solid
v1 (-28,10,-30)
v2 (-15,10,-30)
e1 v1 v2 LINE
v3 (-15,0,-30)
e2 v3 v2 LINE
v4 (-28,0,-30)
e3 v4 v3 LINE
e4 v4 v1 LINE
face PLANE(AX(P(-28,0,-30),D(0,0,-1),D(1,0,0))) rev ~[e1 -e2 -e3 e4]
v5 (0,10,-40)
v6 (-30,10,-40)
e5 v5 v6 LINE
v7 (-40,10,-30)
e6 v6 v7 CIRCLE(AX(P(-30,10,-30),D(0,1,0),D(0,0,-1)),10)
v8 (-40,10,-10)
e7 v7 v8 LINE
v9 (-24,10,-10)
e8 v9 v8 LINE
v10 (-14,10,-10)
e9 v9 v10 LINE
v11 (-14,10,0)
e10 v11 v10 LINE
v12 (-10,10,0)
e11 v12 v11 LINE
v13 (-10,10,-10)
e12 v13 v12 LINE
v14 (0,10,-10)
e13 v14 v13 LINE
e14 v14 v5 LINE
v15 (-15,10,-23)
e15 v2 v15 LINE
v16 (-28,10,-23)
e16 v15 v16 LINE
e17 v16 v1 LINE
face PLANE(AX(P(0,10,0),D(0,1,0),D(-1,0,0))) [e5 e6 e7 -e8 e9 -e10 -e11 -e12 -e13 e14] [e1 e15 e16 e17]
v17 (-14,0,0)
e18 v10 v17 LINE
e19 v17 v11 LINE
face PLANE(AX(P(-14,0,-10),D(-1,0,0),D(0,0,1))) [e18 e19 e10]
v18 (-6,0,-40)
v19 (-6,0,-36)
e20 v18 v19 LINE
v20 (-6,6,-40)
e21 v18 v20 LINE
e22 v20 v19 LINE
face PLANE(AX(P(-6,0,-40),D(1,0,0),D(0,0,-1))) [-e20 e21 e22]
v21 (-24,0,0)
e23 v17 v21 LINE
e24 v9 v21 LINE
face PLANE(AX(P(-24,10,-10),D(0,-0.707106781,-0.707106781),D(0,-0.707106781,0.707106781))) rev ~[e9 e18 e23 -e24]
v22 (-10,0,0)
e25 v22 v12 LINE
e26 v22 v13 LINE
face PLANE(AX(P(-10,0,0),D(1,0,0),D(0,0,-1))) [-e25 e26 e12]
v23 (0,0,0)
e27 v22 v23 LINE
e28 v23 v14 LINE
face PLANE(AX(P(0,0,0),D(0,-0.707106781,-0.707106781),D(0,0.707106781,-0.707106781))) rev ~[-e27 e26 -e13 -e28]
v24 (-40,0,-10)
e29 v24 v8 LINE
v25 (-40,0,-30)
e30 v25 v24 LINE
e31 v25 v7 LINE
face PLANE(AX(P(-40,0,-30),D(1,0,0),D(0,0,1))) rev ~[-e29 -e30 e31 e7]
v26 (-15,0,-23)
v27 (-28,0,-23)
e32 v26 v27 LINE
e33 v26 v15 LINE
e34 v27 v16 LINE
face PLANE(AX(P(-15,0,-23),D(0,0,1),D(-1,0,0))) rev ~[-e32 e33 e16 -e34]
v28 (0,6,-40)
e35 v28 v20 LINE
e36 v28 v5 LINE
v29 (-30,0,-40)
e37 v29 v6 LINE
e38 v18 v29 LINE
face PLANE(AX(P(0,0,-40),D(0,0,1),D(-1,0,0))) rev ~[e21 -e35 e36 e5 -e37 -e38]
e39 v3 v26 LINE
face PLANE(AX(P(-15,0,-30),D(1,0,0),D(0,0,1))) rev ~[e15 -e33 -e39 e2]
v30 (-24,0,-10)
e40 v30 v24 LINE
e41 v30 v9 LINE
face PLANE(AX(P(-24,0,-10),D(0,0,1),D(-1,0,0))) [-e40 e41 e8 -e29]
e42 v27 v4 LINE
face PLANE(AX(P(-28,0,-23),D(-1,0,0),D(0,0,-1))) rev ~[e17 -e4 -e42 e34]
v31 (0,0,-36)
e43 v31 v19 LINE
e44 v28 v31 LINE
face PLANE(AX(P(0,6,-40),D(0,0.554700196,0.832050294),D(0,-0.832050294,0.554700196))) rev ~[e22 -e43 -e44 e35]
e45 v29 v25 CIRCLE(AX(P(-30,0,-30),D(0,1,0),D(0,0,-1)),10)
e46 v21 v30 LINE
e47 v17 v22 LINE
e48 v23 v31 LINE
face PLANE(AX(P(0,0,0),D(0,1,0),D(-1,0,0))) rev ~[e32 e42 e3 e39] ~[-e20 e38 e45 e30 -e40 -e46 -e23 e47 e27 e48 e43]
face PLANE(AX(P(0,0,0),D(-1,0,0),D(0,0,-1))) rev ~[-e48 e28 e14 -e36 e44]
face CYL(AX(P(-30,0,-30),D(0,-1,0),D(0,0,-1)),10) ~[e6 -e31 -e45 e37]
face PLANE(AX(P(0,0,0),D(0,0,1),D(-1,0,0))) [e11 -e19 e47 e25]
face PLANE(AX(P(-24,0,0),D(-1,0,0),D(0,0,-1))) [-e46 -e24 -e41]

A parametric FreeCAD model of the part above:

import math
import FreeCAD as App
import Part
import Sketcher
from FreeCAD import Vector
Q = App.Units.Quantity

doc = App.newDocument("Part")
body = doc.addObject("PartDesign::Body", "Body")

sketch1 = body.newObject("Sketcher::SketchObject", "Sketch")
sketch1.AttachmentSupport = (doc.getObject("XZ_Plane"), [""])
sketch1.MapMode = "FlatFace"
sketch1.addGeometry(Part.LineSegment(Vector(-24, 0, 0), Vector(0, 0, 0)), False)
sketch1.addGeometry(Part.LineSegment(Vector(0, 0, 0), Vector(0, -40, 0)), False)
sketch1.addGeometry(Part.LineSegment(Vector(0, -40, 0), Vector(-30, -40, 0)), False)
sketch1.addGeometry(Part.ArcOfCircle(Part.Circle(Vector(-30, -30, 0), Vector(0, 0, 1), 10), math.radians(180), math.radians(270)), False)
sketch1.addGeometry(Part.LineSegment(Vector(-40, -30, 0), Vector(-40, -10, 0)), False)
sketch1.addGeometry(Part.LineSegment(Vector(-40, -10, 0), Vector(-24, -10, 0)), False)
sketch1.addGeometry(Part.LineSegment(Vector(-24, -10, 0), Vector(-24, 0, 0)), False)
sketch1.addGeometry(Part.LineSegment(Vector(-28, -23, 0), Vector(-28, -30, 0)), False)
sketch1.addGeometry(Part.LineSegment(Vector(-28, -30, 0), Vector(-15, -30, 0)), False)
sketch1.addGeometry(Part.LineSegment(Vector(-15, -30, 0), Vector(-15, -23, 0)), False)
sketch1.addGeometry(Part.LineSegment(Vector(-15, -23, 0), Vector(-28, -23, 0)), False)
sketch1.addConstraint(Sketcher.Constraint("Coincident", 0, 2, 1, 1))
sketch1.addConstraint(Sketcher.Constraint("Coincident", 1, 2, 2, 1))
sketch1.addConstraint(Sketcher.Constraint("Tangent", 2, 2, 3, 2))
sketch1.addConstraint(Sketcher.Constraint("Tangent", 3, 1, 4, 1))
sketch1.addConstraint(Sketcher.Constraint("Coincident", 4, 2, 5, 1))
sketch1.addConstraint(Sketcher.Constraint("Coincident", 5, 2, 6, 1))
sketch1.addConstraint(Sketcher.Constraint("Coincident", 6, 2, 0, 1))
sketch1.addConstraint(Sketcher.Constraint("Coincident", 7, 2, 8, 1))
sketch1.addConstraint(Sketcher.Constraint("Coincident", 8, 2, 9, 1))
sketch1.addConstraint(Sketcher.Constraint("Coincident", 9, 2, 10, 1))
sketch1.addConstraint(Sketcher.Constraint("Coincident", 10, 2, 7, 1))
sketch1.addConstraint(Sketcher.Constraint("Horizontal", 0))
sketch1.addConstraint(Sketcher.Constraint("Vertical", 1))
sketch1.addConstraint(Sketcher.Constraint("Horizontal", 2))
sketch1.addConstraint(Sketcher.Constraint("Vertical", 4))
sketch1.addConstraint(Sketcher.Constraint("Horizontal", 5))
sketch1.addConstraint(Sketcher.Constraint("Vertical", 6))
sketch1.addConstraint(Sketcher.Constraint("Vertical", 7))
sketch1.addConstraint(Sketcher.Constraint("Horizontal", 8))
sketch1.addConstraint(Sketcher.Constraint("Vertical", 9))
sketch1.addConstraint(Sketcher.Constraint("Horizontal", 10))
sketch1.addConstraint(Sketcher.Constraint("Coincident", 0, 2, -1, 1))
sketch1.addConstraint(Sketcher.Constraint("Horizontal", 3, 1, 7, 2))
sketch1.addConstraint(Sketcher.Constraint("Radius", 3, Q("10 mm")))
sketch1.addConstraint(Sketcher.Constraint("DistanceX", 5, 1, 5, 2, Q("16 mm")))
sketch1.addConstraint(Sketcher.Constraint("DistanceX", 8, 1, 8, 2, Q("13 mm")))
sketch1.addConstraint(Sketcher.Constraint("DistanceY", 1, 2, 1, 1, Q("40 mm")))
sketch1.addConstraint(Sketcher.Constraint("DistanceY", 6, 1, 6, 2, Q("10 mm")))
sketch1.addConstraint(Sketcher.Constraint("DistanceY", 7, 2, 7, 1, Q("7 mm")))
sketch1.addConstraint(Sketcher.Constraint("DistanceX", 3, 1, -1, 1, Q("40 mm")))
sketch1.addConstraint(Sketcher.Constraint("DistanceX", 3, 1, 7, 2, Q("12 mm")))
pad1 = body.newObject("PartDesign::Pad", "Pad")
pad1.Profile = sketch1
pad1.Length = 10
pad1.Reversed = True

sketch2 = body.newObject("Sketcher::SketchObject", "Sketch001")
sketch2.AttachmentSupport = (doc.getObject("YZ_Plane"), [""])
sketch2.MapMode = "FlatFace"
sketch2.AttachmentOffset = App.Placement(Vector(0, 0, -24), App.Rotation())
sketch2.addGeometry(Part.LineSegment(Vector(10, 0, 0), Vector(10, -10, 0)), False)
sketch2.addGeometry(Part.LineSegment(Vector(10, -10, 0), Vector(0, 0, 0)), False)
sketch2.addGeometry(Part.LineSegment(Vector(0, 0, 0), Vector(10, 0, 0)), False)
sketch2.addConstraint(Sketcher.Constraint("Coincident", 0, 2, 1, 1))
sketch2.addConstraint(Sketcher.Constraint("Coincident", 1, 2, 2, 1))
sketch2.addConstraint(Sketcher.Constraint("Coincident", 2, 2, 0, 1))
sketch2.addConstraint(Sketcher.Constraint("Vertical", 0))
sketch2.addConstraint(Sketcher.Constraint("Horizontal", 2))
sketch2.addConstraint(Sketcher.Constraint("Coincident", 1, 2, -1, 1))
sketch2.addConstraint(Sketcher.Constraint("Equal", 2, 0))
sketch2.addConstraint(Sketcher.Constraint("DistanceX", 2, 1, 2, 2, Q("10 mm")))
pocket1 = body.newObject("PartDesign::Pocket", "Pocket")
pocket1.Profile = sketch2
pocket1.Length = 10
pocket1.Reversed = True

sketch3 = body.newObject("Sketcher::SketchObject", "Sketch002")
sketch3.AttachmentSupport = (doc.getObject("YZ_Plane"), [""])
sketch3.MapMode = "FlatFace"
sketch3.addGeometry(Part.LineSegment(Vector(10, 0, 0), Vector(0, 0, 0)), False)
sketch3.addGeometry(Part.LineSegment(Vector(0, 0, 0), Vector(10, -10, 0)), False)
sketch3.addGeometry(Part.LineSegment(Vector(10, -10, 0), Vector(10, 0, 0)), False)
sketch3.addConstraint(Sketcher.Constraint("Coincident", 0, 2, 1, 1))
sketch3.addConstraint(Sketcher.Constraint("Coincident", 1, 2, 2, 1))
sketch3.addConstraint(Sketcher.Constraint("Coincident", 2, 2, 0, 1))
sketch3.addConstraint(Sketcher.Constraint("Horizontal", 0))
sketch3.addConstraint(Sketcher.Constraint("Vertical", 2))
sketch3.addConstraint(Sketcher.Constraint("Coincident", 0, 2, -1, 1))
sketch3.addConstraint(Sketcher.Constraint("Equal", 0, 2))
sketch3.addConstraint(Sketcher.Constraint("DistanceX", 0, 2, 0, 1, Q("10 mm")))
pocket2 = body.newObject("PartDesign::Pocket", "Pocket001")
pocket2.Profile = sketch3
pocket2.Length = 10

sketch4 = body.newObject("Sketcher::SketchObject", "Sketch003")
sketch4.AttachmentSupport = (doc.getObject("YZ_Plane"), [""])
sketch4.MapMode = "FlatFace"
sketch4.addGeometry(Part.LineSegment(Vector(0, -36, 0), Vector(0, -40, 0)), False)
sketch4.addGeometry(Part.LineSegment(Vector(0, -40, 0), Vector(6, -40, 0)), False)
sketch4.addGeometry(Part.LineSegment(Vector(6, -40, 0), Vector(0, -36, 0)), False)
sketch4.addConstraint(Sketcher.Constraint("Coincident", 0, 2, 1, 1))
sketch4.addConstraint(Sketcher.Constraint("Coincident", 1, 2, 2, 1))
sketch4.addConstraint(Sketcher.Constraint("Coincident", 2, 2, 0, 1))
sketch4.addConstraint(Sketcher.Constraint("Vertical", 0))
sketch4.addConstraint(Sketcher.Constraint("Horizontal", 1))
sketch4.addConstraint(Sketcher.Constraint("PointOnObject", 0, 2, -2))
sketch4.addConstraint(Sketcher.Constraint("DistanceY", 0, 2, 0, 1, Q("4 mm")))
sketch4.addConstraint(Sketcher.Constraint("DistanceX", 1, 1, 1, 2, Q("6 mm")))
sketch4.addConstraint(Sketcher.Constraint("DistanceY", 0, 2, -1, 1, Q("40 mm")))
pocket3 = body.newObject("PartDesign::Pocket", "Pocket002")
pocket3.Profile = sketch4
pocket3.Length = 6

doc.recompute()
